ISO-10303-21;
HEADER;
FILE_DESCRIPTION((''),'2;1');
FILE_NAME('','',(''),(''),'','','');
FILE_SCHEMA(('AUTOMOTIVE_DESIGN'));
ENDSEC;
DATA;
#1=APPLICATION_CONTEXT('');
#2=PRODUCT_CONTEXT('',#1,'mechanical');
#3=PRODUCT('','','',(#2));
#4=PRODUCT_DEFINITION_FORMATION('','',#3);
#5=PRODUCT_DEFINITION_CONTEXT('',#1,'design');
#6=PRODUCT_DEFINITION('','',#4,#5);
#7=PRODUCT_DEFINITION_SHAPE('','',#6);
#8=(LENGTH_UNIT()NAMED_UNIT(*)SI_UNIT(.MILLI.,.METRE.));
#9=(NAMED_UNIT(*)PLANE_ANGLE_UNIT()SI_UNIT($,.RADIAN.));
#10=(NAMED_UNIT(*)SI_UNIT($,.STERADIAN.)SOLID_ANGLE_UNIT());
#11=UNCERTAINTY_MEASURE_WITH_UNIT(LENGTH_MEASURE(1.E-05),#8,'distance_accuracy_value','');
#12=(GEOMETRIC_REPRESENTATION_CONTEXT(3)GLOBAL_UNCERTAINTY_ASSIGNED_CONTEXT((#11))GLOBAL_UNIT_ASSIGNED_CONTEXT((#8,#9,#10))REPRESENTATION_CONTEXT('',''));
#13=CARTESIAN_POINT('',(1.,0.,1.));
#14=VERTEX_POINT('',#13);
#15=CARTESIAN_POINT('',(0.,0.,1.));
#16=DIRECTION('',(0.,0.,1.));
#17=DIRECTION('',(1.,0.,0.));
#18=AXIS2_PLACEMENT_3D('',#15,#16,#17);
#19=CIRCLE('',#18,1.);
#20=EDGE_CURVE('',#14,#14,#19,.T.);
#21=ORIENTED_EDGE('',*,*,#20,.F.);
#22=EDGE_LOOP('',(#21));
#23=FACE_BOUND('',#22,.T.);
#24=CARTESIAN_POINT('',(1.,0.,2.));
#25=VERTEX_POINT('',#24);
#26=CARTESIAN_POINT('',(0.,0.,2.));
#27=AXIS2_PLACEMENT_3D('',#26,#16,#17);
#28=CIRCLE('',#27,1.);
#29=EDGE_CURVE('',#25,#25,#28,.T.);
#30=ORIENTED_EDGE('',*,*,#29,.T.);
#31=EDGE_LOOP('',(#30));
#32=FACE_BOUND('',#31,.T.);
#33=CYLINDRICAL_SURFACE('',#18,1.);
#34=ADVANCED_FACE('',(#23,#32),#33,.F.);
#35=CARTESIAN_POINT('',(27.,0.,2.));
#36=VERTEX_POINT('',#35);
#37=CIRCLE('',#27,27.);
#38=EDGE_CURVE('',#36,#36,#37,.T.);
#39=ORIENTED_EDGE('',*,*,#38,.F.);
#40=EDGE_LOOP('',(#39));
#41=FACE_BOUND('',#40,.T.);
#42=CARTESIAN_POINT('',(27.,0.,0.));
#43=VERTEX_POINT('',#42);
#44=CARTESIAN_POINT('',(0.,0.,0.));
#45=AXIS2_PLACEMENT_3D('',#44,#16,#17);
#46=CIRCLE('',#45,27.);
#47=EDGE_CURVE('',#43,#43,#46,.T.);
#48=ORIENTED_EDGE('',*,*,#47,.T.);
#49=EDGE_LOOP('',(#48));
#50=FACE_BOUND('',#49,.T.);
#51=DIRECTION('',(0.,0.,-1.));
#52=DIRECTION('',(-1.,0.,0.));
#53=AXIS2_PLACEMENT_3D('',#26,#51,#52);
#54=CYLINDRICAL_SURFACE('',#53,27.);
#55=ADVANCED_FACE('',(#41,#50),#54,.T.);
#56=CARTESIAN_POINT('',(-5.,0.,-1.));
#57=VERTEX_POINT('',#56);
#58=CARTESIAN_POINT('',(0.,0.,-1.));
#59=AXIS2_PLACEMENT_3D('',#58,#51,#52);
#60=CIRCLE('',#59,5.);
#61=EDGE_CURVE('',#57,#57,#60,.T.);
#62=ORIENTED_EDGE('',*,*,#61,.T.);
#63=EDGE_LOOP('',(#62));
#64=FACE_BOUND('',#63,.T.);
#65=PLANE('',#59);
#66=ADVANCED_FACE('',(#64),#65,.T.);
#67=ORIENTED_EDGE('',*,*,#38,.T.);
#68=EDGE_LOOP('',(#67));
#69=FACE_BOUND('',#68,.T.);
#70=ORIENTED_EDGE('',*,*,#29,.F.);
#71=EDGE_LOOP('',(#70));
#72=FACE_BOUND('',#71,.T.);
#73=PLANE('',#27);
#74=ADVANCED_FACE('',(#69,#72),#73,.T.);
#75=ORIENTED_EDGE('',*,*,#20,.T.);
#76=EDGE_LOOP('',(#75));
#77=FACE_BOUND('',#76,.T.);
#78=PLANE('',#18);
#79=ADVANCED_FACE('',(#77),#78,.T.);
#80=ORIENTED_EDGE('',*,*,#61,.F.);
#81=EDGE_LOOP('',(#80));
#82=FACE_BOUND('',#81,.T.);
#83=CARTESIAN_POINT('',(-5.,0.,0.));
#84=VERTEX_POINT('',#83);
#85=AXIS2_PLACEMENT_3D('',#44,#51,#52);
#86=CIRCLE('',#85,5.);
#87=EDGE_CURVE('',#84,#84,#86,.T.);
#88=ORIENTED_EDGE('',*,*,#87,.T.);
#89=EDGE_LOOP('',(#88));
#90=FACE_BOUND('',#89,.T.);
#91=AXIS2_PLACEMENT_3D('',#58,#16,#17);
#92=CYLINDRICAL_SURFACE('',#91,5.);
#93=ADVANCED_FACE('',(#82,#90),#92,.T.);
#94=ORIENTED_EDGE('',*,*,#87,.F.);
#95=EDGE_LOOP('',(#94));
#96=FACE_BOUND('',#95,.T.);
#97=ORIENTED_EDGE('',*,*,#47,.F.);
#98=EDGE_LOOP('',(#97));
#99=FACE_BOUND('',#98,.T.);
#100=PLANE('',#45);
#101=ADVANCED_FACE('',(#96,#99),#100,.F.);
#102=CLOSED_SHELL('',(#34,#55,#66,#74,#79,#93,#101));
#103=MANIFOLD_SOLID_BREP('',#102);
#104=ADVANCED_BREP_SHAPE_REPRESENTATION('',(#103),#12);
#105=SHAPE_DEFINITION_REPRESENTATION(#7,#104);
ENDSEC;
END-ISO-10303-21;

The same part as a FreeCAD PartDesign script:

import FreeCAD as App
import Part
import Sketcher
Q = App.Units.Quantity

doc = App.newDocument("Part")
body = doc.addObject("PartDesign::Body", "Body")

# Sketch on XY plane
sketch1 = body.newObject("Sketcher::SketchObject", "Sketch")
sketch1.AttachmentSupport = (doc.getObject("XY_Plane"), [""])
sketch1.MapMode = "FlatFace"
sketch1.addGeometry(Part.Circle(App.Vector(0, 0, 0), App.Vector(0, 0, 1), 27), False)
sketch1.addConstraint(Sketcher.Constraint("Coincident", 0, 3, -1, 1))
sketch1.addConstraint(Sketcher.Constraint("Diameter", 0, Q("54 mm")))
pad1 = body.newObject("PartDesign::Pad", "Pad")
pad1.Profile = sketch1
pad1.Length = 2

# Sketch on XY plane
sketch2 = body.newObject("Sketcher::SketchObject", "Sketch001")
sketch2.AttachmentSupport = (doc.getObject("XY_Plane"), [""])
sketch2.MapMode = "FlatFace"
sketch2.addGeometry(Part.Circle(App.Vector(0, 0, 0), App.Vector(0, 0, 1), 5), False)
sketch2.addConstraint(Sketcher.Constraint("Coincident", 0, 3, -1, 1))
sketch2.addConstraint(Sketcher.Constraint("Diameter", 0, Q("10 mm")))
pad2 = body.newObject("PartDesign::Pad", "Pad001")
pad2.Profile = sketch2
pad2.Length = 1
pad2.Reversed = True

# Sketch on XY plane
sketch3 = body.newObject("Sketcher::SketchObject", "Sketch002")
sketch3.AttachmentSupport = (doc.getObject("XY_Plane"), [""])
sketch3.MapMode = "FlatFace"
sketch3.AttachmentOffset = App.Placement(App.Vector(0, 0, 2), App.Rotation())
sketch3.addGeometry(Part.Circle(App.Vector(0, 0, 0), App.Vector(0, 0, 1), 1), False)
sketch3.addConstraint(Sketcher.Constraint("Coincident", 0, 3, -1, 1))
sketch3.addConstraint(Sketcher.Constraint("Diameter", 0, Q("2 mm")))
pocket1 = body.newObject("PartDesign::Pocket", "Pocket")
pocket1.Profile = sketch3
pocket1.Length = 1

doc.recompute()
